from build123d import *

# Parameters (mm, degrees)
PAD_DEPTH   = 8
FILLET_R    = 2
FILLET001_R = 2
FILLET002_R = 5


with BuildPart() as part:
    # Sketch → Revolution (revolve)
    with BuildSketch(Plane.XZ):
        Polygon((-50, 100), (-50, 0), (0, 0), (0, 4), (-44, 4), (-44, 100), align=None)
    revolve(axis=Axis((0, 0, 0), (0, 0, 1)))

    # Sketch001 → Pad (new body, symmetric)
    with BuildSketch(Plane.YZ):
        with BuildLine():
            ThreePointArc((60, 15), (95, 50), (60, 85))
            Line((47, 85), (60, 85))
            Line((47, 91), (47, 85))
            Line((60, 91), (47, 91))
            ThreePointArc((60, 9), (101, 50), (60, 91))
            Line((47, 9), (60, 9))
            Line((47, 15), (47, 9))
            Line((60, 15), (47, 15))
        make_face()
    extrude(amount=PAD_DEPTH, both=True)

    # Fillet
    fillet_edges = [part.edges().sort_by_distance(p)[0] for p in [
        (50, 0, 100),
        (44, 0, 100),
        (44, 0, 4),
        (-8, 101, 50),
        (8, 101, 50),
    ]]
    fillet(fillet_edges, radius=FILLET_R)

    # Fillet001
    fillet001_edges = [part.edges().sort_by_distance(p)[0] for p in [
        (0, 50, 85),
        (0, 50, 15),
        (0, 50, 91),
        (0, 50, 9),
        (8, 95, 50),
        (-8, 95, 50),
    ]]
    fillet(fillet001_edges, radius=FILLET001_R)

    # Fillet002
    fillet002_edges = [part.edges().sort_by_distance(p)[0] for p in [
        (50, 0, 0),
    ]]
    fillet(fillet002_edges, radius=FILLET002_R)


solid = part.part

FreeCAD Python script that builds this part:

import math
import FreeCAD as App
import Part
import Sketcher
from FreeCAD import Vector


def edges_at(feature, points):
    """Names of the edges that pass closest to the given points."""
    edges = feature.Shape.Edges
    near = lambda p: min(range(len(edges)), key=lambda i: edges[i].distToShape(Part.Vertex(*p))[0])
    return sorted({f"Edge{near(p) + 1}" for p in points})

doc = App.newDocument("Part")
body = doc.addObject("PartDesign::Body", "Body")

# Sketch on XZ plane
sketch1 = doc.addObject("Sketcher::SketchObject", "Sketch")
body.addObject(sketch1)
sketch1.AttachmentSupport = (doc.XZ_Plane, [""])
sketch1.MapMode = "FlatFace"
sketch1.addGeometry([
    Part.LineSegment(Vector(-50, 100, 0), Vector(-50, 0, 0)),  # 0
    Part.LineSegment(Vector(-50, 0, 0), Vector(0, 0, 0)),  # 1
    Part.LineSegment(Vector(0, 0, 0), Vector(0, 4, 0)),  # 2
    Part.LineSegment(Vector(0, 4, 0), Vector(-44, 4, 0)),  # 3
    Part.LineSegment(Vector(-44, 4, 0), Vector(-44, 100, 0)),  # 4
    Part.LineSegment(Vector(-44, 100, 0), Vector(-50, 100, 0)),  # 5
], False)
sketch1.addConstraint([
    Sketcher.Constraint("Coincident", 0, 2, 1, 1),
    Sketcher.Constraint("Coincident", 1, 2, 2, 1),
    Sketcher.Constraint("Coincident", 2, 2, 3, 1),
    Sketcher.Constraint("Coincident", 3, 2, 4, 1),
    Sketcher.Constraint("Coincident", 4, 2, 5, 1),
    Sketcher.Constraint("Coincident", 5, 2, 0, 1),
    Sketcher.Constraint("Vertical", 0),
    Sketcher.Constraint("Horizontal", 1),
    Sketcher.Constraint("Vertical", 2),
    Sketcher.Constraint("Horizontal", 3),
    Sketcher.Constraint("Vertical", 4),
    Sketcher.Constraint("Horizontal", 5),
    Sketcher.Constraint("Coincident", 1, 2, -1, 1),
    Sketcher.Constraint("DistanceX", 1, 1, 1, 2, 50.0),
    Sketcher.Constraint("DistanceX", 3, 2, 3, 1, 44.0),
    Sketcher.Constraint("DistanceY", 0, 2, 0, 1, 100.0),
    Sketcher.Constraint("DistanceY", 2, 1, 2, 2, 4.0),
])
revolution = doc.addObject("PartDesign::Revolution", "Revolution")
body.addObject(revolution)
revolution.Profile = sketch1
revolution.ReferenceAxis = (sketch1, ["V_Axis"])
revolution.Angle = 360

# Sketch on YZ plane
sketch2 = doc.addObject("Sketcher::SketchObject", "Sketch001")
body.addObject(sketch2)
sketch2.AttachmentSupport = (doc.YZ_Plane, [""])
sketch2.MapMode = "FlatFace"
sketch2.addGeometry([
    Part.ArcOfCircle(Part.Circle(Vector(60, 50, 0), Vector(0, 0, 1), 35), math.radians(-90), math.radians(90)),  # 0
    Part.LineSegment(Vector(60, 15, 0), Vector(47, 15, 0)),  # 1
    Part.LineSegment(Vector(47, 15, 0), Vector(47, 9, 0)),  # 2
    Part.LineSegment(Vector(47, 9, 0), Vector(60, 9, 0)),  # 3
    Part.ArcOfCircle(Part.Circle(Vector(60, 50, 0), Vector(0, 0, 1), 41), math.radians(-90), math.radians(90)),  # 4
    Part.LineSegment(Vector(60, 91, 0), Vector(47, 91, 0)),  # 5
    Part.LineSegment(Vector(47, 91, 0), Vector(47, 85, 0)),  # 6
    Part.LineSegment(Vector(47, 85, 0), Vector(60, 85, 0)),  # 7
], False)
sketch2.addConstraint([
    Sketcher.Constraint("Tangent", 0, 1, 1, 1),
    Sketcher.Constraint("Coincident", 1, 2, 2, 1),
    Sketcher.Constraint("Coincident", 2, 2, 3, 1),
    Sketcher.Constraint("Tangent", 3, 2, 4, 1),
    Sketcher.Constraint("Tangent", 4, 2, 5, 1),
    Sketcher.Constraint("Coincident", 5, 2, 6, 1),
    Sketcher.Constraint("Coincident", 6, 2, 7, 1),
    Sketcher.Constraint("Tangent", 7, 2, 0, 2),
    Sketcher.Constraint("Horizontal", 1),
    Sketcher.Constraint("Vertical", 2),
    Sketcher.Constraint("Horizontal", 3),
    Sketcher.Constraint("Horizontal", 5),
    Sketcher.Constraint("Vertical", 6),
    Sketcher.Constraint("Horizontal", 7),
    Sketcher.Constraint("Coincident", 4, 3, 0, 3),
    Sketcher.Constraint("Vertical", 2, 2, 5, 2),
    Sketcher.Constraint("Radius", 0, 35.0),
    Sketcher.Constraint("Radius", 4, 41.0),
    Sketcher.Constraint("DistanceX", 1, 2, 1, 1, 13.0),
    Sketcher.Constraint("DistanceX", -1, 1, 0, 3, 60.0),
    Sketcher.Constraint("DistanceY", -1, 1, 0, 3, 50.0),
])
pad1 = doc.addObject("PartDesign::Pad", "Pad")
body.addObject(pad1)
pad1.Profile = sketch2
pad1.Length = 16
pad1.Midplane = True
doc.recompute()

fillet = doc.addObject("PartDesign::Fillet", "Fillet")
body.addObject(fillet)
fillet.Base = (pad1, edges_at(pad1, [
    (50, 0, 100),
    (44, 0, 100),
    (44, 0, 4),
    (-8, 101, 50),
    (8, 101, 50),
]))
fillet.Radius = 2
doc.recompute()

fillet2 = doc.addObject("PartDesign::Fillet", "Fillet001")
body.addObject(fillet2)
fillet2.Base = (fillet, edges_at(fillet, [
    (0, 50, 85),
    (0, 50, 15),
    (0, 50, 91),
    (0, 50, 9),
    (8, 95, 50),
    (-8, 95, 50),
]))
fillet2.Radius = 2
doc.recompute()

fillet3 = doc.addObject("PartDesign::Fillet", "Fillet002")
body.addObject(fillet3)
fillet3.Base = (fillet2, edges_at(fillet2, [(50, 0, 0)]))
fillet3.Radius = 5

doc.recompute()
